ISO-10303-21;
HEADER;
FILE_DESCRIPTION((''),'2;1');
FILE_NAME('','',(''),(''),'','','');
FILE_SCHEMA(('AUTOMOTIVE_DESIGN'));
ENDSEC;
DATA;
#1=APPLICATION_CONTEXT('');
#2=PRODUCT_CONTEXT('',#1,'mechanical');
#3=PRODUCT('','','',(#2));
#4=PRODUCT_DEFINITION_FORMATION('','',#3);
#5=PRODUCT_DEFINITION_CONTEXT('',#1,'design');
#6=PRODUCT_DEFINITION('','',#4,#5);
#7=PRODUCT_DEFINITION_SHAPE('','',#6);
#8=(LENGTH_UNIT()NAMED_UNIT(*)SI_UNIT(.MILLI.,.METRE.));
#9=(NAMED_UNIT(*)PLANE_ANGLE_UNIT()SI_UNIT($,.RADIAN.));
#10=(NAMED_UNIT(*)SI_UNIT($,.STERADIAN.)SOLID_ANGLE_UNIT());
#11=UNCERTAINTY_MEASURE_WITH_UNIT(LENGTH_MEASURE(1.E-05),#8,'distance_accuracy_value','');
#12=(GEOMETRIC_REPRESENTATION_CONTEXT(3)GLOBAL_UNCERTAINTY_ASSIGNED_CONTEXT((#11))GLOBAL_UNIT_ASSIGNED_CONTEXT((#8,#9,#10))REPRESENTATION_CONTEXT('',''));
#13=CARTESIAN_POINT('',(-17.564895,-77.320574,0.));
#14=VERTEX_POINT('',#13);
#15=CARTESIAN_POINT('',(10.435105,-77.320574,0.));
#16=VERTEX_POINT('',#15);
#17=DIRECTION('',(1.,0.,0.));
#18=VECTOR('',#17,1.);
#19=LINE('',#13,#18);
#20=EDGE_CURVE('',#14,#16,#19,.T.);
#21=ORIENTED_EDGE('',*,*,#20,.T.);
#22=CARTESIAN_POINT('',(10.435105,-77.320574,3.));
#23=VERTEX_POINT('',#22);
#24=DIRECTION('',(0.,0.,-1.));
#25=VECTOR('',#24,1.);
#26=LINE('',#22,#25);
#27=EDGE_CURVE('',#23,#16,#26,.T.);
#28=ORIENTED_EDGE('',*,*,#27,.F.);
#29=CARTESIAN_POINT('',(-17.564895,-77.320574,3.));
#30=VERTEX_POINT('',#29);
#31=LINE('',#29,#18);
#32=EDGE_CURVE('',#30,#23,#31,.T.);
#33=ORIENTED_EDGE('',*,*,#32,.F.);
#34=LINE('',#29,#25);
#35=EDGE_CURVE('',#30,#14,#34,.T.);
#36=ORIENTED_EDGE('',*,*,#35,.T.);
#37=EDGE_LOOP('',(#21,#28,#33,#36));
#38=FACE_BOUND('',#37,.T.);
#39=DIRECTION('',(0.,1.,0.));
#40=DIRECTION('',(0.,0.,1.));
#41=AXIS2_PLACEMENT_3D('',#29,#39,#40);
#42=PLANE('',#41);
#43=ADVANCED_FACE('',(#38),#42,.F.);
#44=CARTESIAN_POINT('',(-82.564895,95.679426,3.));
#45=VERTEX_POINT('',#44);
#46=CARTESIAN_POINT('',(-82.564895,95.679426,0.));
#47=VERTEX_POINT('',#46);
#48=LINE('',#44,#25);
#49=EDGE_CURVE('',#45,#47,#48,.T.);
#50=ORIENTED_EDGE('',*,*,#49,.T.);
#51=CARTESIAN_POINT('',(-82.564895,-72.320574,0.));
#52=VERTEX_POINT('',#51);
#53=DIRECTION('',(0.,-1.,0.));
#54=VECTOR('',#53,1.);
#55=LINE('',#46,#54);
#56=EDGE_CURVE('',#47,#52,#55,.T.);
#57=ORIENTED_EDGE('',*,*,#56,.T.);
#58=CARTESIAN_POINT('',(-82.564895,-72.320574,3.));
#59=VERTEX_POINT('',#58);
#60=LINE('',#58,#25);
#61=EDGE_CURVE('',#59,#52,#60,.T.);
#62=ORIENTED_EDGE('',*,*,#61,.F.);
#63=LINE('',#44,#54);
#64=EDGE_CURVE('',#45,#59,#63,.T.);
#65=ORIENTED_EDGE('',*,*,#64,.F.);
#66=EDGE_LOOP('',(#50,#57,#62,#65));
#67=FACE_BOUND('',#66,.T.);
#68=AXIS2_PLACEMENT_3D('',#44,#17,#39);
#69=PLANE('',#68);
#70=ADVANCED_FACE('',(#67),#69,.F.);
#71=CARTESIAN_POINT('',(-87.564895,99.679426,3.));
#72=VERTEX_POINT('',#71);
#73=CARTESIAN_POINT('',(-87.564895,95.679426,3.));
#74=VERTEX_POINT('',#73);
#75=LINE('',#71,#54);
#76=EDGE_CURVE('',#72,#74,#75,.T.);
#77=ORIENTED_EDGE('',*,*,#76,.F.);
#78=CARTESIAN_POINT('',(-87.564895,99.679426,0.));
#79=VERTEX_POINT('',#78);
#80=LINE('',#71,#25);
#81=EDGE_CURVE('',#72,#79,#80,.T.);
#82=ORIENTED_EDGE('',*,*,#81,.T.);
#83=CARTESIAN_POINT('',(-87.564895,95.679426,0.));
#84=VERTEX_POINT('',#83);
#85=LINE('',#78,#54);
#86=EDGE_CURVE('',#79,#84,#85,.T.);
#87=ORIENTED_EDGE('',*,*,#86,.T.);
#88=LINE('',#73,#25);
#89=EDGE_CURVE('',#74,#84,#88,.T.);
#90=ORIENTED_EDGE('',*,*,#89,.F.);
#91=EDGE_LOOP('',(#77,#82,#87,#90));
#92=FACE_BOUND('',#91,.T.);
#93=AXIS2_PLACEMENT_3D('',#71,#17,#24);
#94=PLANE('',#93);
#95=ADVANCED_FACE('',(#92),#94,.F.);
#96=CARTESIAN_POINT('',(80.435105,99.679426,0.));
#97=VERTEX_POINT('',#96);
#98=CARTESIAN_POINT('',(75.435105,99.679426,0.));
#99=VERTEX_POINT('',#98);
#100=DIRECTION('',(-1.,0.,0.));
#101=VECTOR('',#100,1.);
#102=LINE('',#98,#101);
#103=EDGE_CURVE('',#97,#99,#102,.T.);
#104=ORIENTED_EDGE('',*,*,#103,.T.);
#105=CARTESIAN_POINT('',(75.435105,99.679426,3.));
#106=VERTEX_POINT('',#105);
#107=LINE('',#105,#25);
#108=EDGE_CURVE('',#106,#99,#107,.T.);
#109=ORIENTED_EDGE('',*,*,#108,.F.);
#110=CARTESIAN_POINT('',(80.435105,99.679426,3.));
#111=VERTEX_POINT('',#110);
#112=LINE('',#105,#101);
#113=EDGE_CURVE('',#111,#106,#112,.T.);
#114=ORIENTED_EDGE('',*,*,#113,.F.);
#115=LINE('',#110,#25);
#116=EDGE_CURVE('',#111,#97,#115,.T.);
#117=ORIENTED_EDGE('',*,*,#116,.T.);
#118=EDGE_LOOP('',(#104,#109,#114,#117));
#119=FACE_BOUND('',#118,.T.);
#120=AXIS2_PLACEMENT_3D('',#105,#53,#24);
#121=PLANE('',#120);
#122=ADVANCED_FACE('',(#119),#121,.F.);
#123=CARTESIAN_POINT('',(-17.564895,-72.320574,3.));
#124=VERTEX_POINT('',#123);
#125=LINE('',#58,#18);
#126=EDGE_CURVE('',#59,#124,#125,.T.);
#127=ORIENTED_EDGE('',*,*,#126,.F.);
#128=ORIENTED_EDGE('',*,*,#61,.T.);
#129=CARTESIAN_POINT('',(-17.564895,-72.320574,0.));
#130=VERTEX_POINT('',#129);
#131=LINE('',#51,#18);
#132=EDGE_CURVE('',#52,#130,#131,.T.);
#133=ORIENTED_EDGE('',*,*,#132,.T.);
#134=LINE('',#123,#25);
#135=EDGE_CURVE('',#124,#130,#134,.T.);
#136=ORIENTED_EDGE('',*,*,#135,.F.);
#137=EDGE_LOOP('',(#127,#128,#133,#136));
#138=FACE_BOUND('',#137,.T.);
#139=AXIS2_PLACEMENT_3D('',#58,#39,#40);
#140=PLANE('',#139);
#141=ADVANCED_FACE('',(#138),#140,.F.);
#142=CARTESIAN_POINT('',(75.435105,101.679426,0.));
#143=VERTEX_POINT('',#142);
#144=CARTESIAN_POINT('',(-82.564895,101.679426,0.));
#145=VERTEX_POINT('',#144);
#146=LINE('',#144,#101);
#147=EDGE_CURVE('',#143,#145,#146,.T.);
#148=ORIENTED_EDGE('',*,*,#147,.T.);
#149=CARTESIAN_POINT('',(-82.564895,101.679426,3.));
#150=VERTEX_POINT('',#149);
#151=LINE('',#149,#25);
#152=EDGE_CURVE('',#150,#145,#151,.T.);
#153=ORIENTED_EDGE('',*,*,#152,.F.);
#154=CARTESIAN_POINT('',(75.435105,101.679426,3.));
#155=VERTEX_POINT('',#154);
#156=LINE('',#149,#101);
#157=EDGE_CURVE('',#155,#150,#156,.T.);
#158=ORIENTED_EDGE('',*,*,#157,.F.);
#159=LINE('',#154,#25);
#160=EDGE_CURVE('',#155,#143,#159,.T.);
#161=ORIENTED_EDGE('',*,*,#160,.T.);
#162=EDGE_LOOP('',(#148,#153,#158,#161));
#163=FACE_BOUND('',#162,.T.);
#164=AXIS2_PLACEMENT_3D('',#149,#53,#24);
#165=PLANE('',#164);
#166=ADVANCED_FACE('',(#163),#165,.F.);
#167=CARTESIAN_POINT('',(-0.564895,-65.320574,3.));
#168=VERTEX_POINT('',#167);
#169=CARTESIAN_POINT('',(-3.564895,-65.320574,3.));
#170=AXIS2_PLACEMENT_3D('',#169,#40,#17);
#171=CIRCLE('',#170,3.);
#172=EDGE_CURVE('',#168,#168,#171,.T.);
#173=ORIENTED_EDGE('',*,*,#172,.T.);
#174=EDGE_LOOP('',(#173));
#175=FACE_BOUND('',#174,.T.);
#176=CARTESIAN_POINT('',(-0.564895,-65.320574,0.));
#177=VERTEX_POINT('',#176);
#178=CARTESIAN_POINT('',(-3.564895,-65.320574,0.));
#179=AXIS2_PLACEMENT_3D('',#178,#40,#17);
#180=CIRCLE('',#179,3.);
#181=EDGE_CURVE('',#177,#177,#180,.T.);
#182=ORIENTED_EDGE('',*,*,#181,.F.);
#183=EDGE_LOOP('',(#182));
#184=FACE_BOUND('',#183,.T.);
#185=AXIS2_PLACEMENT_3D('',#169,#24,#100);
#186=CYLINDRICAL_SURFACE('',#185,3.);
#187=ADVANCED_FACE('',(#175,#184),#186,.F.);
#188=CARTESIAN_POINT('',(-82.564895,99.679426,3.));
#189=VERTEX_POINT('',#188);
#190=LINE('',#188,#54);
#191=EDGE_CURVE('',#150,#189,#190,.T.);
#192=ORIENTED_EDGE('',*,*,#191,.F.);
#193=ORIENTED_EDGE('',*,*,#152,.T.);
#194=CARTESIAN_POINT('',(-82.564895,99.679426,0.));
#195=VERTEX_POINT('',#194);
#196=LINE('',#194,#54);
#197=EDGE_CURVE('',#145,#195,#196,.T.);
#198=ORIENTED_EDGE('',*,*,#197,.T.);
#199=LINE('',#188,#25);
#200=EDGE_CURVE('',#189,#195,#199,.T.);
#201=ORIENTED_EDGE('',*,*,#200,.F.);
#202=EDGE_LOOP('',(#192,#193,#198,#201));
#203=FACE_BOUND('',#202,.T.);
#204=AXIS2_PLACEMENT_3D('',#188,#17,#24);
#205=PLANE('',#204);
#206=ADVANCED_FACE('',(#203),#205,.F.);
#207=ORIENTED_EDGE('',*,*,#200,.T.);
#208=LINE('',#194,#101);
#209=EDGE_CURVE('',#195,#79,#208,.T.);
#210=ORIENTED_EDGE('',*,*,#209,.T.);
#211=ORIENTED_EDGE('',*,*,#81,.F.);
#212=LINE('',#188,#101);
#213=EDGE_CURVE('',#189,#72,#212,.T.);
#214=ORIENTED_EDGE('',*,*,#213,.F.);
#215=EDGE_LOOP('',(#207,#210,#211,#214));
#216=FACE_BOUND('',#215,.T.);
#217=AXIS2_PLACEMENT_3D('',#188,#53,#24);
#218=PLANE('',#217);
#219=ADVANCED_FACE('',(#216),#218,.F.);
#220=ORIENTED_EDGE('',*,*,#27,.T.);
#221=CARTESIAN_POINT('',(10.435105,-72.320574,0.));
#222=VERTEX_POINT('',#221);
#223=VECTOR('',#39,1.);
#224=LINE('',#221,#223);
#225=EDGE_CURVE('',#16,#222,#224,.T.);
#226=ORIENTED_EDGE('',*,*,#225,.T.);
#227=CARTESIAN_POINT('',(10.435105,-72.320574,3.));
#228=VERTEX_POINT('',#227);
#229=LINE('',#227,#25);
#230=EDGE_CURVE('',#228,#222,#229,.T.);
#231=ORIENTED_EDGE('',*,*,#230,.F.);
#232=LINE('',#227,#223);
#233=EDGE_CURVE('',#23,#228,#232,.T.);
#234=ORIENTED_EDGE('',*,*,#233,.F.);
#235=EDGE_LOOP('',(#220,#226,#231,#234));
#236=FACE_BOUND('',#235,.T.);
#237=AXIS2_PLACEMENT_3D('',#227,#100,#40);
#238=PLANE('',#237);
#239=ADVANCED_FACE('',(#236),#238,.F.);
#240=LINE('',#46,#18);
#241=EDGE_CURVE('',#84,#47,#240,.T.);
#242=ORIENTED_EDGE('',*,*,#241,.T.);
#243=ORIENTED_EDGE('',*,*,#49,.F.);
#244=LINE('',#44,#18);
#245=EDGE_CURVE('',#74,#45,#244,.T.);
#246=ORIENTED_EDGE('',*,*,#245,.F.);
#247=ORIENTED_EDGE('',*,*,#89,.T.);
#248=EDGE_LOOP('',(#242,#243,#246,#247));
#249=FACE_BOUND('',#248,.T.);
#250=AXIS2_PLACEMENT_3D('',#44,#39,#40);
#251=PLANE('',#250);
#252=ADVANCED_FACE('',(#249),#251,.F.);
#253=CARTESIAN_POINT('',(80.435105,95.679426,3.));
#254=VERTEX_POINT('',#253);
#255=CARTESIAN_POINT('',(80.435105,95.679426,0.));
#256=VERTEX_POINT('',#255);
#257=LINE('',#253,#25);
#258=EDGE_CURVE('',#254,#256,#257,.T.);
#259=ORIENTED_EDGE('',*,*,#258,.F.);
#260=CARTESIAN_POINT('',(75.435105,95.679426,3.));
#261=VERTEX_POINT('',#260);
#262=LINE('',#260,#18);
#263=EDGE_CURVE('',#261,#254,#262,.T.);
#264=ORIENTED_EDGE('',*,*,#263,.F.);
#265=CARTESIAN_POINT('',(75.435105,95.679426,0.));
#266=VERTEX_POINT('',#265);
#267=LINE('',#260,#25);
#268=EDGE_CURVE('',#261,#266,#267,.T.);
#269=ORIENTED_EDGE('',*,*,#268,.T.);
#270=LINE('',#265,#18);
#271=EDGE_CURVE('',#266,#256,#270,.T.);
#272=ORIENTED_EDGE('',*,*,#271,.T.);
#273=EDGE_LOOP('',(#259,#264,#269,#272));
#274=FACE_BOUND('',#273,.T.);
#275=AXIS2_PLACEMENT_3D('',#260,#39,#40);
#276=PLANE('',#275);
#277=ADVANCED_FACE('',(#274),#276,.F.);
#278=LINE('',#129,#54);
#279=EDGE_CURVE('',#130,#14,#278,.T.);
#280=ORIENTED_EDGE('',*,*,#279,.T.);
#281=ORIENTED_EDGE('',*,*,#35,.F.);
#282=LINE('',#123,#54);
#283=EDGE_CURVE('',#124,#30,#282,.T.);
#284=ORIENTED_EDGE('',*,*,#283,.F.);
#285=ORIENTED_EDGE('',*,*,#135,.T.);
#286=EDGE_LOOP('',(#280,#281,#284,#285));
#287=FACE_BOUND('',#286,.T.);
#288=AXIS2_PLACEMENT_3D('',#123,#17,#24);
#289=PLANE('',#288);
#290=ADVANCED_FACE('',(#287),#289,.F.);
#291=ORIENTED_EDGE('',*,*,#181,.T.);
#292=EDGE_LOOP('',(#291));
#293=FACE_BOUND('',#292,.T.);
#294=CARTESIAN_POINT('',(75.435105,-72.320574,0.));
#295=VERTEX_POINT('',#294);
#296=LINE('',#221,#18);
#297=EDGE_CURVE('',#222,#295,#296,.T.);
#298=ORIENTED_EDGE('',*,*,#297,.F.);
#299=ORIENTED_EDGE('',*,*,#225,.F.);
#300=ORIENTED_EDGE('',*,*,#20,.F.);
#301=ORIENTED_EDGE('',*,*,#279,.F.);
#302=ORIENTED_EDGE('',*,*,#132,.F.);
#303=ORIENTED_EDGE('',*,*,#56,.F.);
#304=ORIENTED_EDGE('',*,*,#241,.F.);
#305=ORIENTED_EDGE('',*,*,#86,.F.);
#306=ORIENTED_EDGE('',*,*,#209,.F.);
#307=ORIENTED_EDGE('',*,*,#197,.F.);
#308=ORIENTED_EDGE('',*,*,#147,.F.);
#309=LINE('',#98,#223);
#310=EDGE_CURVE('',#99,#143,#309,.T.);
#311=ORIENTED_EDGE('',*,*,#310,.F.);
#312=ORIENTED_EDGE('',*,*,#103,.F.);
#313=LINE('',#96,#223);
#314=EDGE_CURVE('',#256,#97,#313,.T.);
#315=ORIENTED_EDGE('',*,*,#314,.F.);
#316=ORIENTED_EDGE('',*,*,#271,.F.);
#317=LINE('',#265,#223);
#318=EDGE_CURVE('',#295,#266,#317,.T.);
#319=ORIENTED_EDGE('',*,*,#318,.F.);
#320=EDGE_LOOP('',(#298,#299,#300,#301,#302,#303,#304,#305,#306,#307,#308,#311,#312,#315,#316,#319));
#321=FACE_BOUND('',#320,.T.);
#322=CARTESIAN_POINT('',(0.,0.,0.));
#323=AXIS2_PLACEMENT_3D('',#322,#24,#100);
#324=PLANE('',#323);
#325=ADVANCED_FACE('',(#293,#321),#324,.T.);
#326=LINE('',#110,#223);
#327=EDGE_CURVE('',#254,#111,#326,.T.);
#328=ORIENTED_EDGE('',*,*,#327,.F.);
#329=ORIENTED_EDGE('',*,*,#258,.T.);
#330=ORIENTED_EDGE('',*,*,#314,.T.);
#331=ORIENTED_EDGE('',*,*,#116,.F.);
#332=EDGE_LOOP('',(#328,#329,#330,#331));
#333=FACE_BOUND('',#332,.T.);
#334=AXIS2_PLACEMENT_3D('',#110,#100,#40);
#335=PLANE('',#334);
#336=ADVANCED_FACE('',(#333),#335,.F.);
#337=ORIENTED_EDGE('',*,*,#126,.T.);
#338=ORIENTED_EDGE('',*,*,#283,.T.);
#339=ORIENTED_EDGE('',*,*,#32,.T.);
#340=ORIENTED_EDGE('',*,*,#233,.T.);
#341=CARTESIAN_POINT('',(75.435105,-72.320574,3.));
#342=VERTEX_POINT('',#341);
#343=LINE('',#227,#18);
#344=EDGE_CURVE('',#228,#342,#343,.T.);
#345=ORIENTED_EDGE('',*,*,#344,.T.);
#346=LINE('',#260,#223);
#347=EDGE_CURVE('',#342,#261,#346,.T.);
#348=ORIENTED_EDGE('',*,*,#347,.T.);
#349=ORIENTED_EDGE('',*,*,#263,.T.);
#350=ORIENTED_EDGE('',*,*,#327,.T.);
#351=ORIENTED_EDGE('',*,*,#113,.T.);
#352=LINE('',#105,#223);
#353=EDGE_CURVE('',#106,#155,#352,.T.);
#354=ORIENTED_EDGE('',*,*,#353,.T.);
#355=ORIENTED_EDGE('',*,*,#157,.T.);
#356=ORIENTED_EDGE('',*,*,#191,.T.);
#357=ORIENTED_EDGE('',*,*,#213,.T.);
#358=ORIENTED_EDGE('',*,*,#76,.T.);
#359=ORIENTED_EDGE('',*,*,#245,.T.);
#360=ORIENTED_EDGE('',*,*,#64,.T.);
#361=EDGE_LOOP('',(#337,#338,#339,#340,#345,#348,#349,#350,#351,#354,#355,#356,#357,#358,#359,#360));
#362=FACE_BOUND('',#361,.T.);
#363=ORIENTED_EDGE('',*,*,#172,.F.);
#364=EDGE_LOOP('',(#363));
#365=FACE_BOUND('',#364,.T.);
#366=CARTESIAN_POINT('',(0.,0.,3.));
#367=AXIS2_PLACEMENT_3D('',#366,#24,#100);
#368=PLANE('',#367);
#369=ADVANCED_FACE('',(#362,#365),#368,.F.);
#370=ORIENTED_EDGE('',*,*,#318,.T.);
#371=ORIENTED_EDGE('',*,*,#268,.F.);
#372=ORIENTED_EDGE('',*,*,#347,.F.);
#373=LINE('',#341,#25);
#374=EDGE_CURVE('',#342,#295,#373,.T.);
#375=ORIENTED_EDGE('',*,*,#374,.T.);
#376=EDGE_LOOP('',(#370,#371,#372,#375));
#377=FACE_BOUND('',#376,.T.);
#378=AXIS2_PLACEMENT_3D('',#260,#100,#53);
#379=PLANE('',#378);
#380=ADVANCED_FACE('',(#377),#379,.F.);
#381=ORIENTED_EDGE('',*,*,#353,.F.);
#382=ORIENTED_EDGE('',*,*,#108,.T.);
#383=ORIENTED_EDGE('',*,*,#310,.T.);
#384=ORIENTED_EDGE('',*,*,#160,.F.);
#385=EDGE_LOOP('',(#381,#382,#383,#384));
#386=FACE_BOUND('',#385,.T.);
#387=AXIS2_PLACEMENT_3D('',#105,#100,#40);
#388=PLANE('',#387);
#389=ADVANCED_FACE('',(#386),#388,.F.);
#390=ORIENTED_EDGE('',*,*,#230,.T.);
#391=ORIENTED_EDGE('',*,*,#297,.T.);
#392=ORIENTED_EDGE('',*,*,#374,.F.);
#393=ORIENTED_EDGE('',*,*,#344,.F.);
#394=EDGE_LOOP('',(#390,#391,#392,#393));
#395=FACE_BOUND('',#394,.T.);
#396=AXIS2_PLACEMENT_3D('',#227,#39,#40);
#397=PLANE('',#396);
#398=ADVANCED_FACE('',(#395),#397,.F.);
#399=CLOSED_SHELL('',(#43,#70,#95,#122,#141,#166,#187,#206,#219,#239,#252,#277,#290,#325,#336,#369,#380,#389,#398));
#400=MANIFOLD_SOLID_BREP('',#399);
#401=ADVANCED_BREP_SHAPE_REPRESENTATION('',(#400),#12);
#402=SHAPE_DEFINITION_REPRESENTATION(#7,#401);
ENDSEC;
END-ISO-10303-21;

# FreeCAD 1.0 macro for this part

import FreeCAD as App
import Part
import Sketcher

V = App.Vector


def add_polygon(sketch, points):
    """Adds a closed chain of lines whose ends are joined by coincident constraints."""
    first, n = sketch.GeometryCount, len(points)
    for a, b in zip(points, points[1:] + points[:1]):
        sketch.addGeometry(Part.LineSegment(App.Vector(*a, 0), App.Vector(*b, 0)), False)
    for i in range(n):
        sketch.addConstraint(Sketcher.Constraint("Coincident", first + i, 2, first + (i + 1) % n, 1))

doc = App.newDocument("Part")
body = doc.addObject("PartDesign::Body", "Body")

sketch1 = body.newObject("Sketcher::SketchObject", "Sketch")
sketch1.AttachmentSupport = (doc.getObject("XY_Plane"), [""])
sketch1.MapMode = "FlatFace"
add_polygon(sketch1, [(10.435105, -72.320574), (75.435105, -72.320574), (75.435105, 95.679426), (80.435105, 95.679426), (80.435105, 99.679426), (75.435105, 99.679426), (75.435105, 101.679426), (-82.564895, 101.679426), (-82.564895, 99.679426), (-87.564895, 99.679426), (-87.564895, 95.679426), (-82.564895, 95.679426), (-82.564895, -72.320574), (-17.564895, -72.320574), (-17.564895, -77.320574), (10.435105, -77.320574)])
sketch1.addGeometry(Part.Circle(V(-3.564895, -65.320574, 0), V(0, 0, 1), 3), False)
sketch1.addConstraint(Sketcher.Constraint("Horizontal", 0))
sketch1.addConstraint(Sketcher.Constraint("Vertical", 1))
sketch1.addConstraint(Sketcher.Constraint("Horizontal", 2))
sketch1.addConstraint(Sketcher.Constraint("Vertical", 3))
sketch1.addConstraint(Sketcher.Constraint("Horizontal", 4))
sketch1.addConstraint(Sketcher.Constraint("Vertical", 5))
sketch1.addConstraint(Sketcher.Constraint("Horizontal", 6))
sketch1.addConstraint(Sketcher.Constraint("Vertical", 7))
sketch1.addConstraint(Sketcher.Constraint("Horizontal", 8))
sketch1.addConstraint(Sketcher.Constraint("Vertical", 9))
sketch1.addConstraint(Sketcher.Constraint("Horizontal", 10))
sketch1.addConstraint(Sketcher.Constraint("Vertical", 11))
sketch1.addConstraint(Sketcher.Constraint("Horizontal", 12))
sketch1.addConstraint(Sketcher.Constraint("Vertical", 13))
sketch1.addConstraint(Sketcher.Constraint("Horizontal", 14))
sketch1.addConstraint(Sketcher.Constraint("Vertical", 15))
sketch1.addConstraint(Sketcher.Constraint("Horizontal", 4, 2, 7, 2))
sketch1.addConstraint(Sketcher.Constraint("Horizontal", 2, 2, 9, 2))
sketch1.addConstraint(Sketcher.Constraint("Horizontal", 0, 2, 11, 2))
sketch1.addConstraint(Sketcher.Constraint("Vertical", 1, 2, 4, 2))
sketch1.addConstraint(Sketcher.Constraint("Vertical", 7, 2, 10, 2))
sketch1.addConstraint(Sketcher.Constraint("Equal", 4, 8))
sketch1.addConstraint(Sketcher.Constraint("Equal", 0, 12))
sketch1.addConstraint(Sketcher.Constraint("Equal", 10, 13))
sketch1.addConstraint(Sketcher.Constraint("Diameter", 16, 6.0))
sketch1.addConstraint(Sketcher.Constraint("DistanceX", 0, 1, 0, 2, 65.0))
sketch1.addConstraint(Sketcher.Constraint("DistanceX", 2, 1, 2, 2, 5.0))
sketch1.addConstraint(Sketcher.Constraint("DistanceX", 6, 2, 6, 1, 158.0))
sketch1.addConstraint(Sketcher.Constraint("DistanceY", 1, 1, 1, 2, 168.0))
sketch1.addConstraint(Sketcher.Constraint("DistanceY", 3, 1, 3, 2, 4.0))
sketch1.addConstraint(Sketcher.Constraint("DistanceY", 5, 1, 5, 2, 2.0))
sketch1.addConstraint(Sketcher.Constraint("DistanceX", 16, 3, 0, 2, 79.0))
sketch1.addConstraint(Sketcher.Constraint("DistanceY", 0, 2, 16, 3, 7.0))
sketch1.addConstraint(Sketcher.Constraint("DistanceX", 16, 3, -1, 1, 3.564895))
sketch1.addConstraint(Sketcher.Constraint("DistanceY", 16, 3, -1, 1, 65.320574))
pad1 = body.newObject("PartDesign::Pad", "Pad")
pad1.Profile = sketch1
pad1.Length = 3

doc.recompute()
